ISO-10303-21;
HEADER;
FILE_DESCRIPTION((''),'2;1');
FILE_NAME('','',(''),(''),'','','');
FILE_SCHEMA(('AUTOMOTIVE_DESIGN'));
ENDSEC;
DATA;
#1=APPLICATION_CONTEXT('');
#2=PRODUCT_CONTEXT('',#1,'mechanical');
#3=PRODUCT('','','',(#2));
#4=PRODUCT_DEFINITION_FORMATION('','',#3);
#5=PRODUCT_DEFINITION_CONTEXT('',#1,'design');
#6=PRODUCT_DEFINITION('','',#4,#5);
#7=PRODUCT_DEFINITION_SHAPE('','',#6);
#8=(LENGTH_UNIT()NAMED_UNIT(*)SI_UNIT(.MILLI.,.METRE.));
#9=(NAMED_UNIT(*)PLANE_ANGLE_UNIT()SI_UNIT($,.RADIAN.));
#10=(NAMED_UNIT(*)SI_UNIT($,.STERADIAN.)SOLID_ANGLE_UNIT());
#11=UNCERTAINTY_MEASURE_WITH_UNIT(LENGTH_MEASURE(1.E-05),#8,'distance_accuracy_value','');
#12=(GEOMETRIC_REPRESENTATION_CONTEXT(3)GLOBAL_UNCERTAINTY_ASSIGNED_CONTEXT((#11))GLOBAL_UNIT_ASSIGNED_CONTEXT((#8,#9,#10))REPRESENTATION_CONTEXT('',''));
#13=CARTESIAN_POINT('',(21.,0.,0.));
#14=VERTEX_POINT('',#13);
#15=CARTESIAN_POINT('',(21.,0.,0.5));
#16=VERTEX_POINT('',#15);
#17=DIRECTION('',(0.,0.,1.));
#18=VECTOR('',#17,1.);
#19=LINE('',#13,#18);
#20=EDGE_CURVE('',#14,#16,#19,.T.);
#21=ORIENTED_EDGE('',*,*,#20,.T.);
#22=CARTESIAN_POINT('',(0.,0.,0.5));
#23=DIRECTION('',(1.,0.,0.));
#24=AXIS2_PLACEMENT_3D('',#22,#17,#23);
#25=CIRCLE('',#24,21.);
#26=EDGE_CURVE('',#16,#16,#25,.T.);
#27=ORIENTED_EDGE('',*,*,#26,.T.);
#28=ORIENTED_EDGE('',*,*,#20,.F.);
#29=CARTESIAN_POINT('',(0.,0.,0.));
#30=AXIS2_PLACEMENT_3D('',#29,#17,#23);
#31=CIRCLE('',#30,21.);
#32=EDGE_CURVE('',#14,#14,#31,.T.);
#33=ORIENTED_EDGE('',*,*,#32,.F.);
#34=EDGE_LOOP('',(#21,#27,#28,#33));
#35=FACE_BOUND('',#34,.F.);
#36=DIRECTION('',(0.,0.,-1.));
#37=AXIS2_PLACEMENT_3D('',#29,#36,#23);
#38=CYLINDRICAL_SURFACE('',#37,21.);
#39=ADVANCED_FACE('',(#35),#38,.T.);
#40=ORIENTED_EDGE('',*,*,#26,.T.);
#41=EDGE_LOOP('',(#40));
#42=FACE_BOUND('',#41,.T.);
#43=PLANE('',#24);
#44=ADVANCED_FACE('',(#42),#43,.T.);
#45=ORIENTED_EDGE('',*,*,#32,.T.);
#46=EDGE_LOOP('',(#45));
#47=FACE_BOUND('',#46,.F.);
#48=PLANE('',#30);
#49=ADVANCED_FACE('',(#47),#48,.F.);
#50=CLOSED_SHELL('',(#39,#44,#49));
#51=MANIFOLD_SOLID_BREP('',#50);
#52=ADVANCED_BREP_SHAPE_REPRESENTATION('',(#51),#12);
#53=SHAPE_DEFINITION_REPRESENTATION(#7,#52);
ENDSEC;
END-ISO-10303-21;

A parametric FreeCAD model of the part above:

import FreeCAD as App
import Part
import Sketcher

V = App.Vector
Q = App.Units.Quantity

doc = App.newDocument("Part")
params = doc.addObject("Spreadsheet::Sheet", "Params")
for row, (alias, value) in enumerate([
    ("sketch1_diameter", "42 mm"),
    ("pad1_length", "0.5 mm"),
], start=1):
    params.set(f"A{row}", alias)
    params.set(f"B{row}", "=" + value)
    params.setAlias(f"B{row}", alias)

body = doc.addObject("PartDesign::Body", "Body")

sketch1 = doc.addObject("Sketcher::SketchObject", "Sketch")
body.addObject(sketch1)
sketch1.AttachmentSupport = (doc.XY_Plane, [""])
sketch1.MapMode = "FlatFace"
sketch1.addGeometry(Part.Circle(V(0, 0, 0), V(0, 0, 1), 21), False)
sketch1.addConstraint(Sketcher.Constraint("Coincident", 0, 3, -1, 1))
sketch1.addConstraint(Sketcher.Constraint("Diameter", 0, Q("42 mm")))
sketch1.setExpression("Constraints[1]", "Params.sketch1_diameter")
pad1 = doc.addObject("PartDesign::Pad", "Pad")
body.addObject(pad1)
pad1.Profile = sketch1
pad1.setExpression("Length", "Params.pad1_length")

doc.recompute()
